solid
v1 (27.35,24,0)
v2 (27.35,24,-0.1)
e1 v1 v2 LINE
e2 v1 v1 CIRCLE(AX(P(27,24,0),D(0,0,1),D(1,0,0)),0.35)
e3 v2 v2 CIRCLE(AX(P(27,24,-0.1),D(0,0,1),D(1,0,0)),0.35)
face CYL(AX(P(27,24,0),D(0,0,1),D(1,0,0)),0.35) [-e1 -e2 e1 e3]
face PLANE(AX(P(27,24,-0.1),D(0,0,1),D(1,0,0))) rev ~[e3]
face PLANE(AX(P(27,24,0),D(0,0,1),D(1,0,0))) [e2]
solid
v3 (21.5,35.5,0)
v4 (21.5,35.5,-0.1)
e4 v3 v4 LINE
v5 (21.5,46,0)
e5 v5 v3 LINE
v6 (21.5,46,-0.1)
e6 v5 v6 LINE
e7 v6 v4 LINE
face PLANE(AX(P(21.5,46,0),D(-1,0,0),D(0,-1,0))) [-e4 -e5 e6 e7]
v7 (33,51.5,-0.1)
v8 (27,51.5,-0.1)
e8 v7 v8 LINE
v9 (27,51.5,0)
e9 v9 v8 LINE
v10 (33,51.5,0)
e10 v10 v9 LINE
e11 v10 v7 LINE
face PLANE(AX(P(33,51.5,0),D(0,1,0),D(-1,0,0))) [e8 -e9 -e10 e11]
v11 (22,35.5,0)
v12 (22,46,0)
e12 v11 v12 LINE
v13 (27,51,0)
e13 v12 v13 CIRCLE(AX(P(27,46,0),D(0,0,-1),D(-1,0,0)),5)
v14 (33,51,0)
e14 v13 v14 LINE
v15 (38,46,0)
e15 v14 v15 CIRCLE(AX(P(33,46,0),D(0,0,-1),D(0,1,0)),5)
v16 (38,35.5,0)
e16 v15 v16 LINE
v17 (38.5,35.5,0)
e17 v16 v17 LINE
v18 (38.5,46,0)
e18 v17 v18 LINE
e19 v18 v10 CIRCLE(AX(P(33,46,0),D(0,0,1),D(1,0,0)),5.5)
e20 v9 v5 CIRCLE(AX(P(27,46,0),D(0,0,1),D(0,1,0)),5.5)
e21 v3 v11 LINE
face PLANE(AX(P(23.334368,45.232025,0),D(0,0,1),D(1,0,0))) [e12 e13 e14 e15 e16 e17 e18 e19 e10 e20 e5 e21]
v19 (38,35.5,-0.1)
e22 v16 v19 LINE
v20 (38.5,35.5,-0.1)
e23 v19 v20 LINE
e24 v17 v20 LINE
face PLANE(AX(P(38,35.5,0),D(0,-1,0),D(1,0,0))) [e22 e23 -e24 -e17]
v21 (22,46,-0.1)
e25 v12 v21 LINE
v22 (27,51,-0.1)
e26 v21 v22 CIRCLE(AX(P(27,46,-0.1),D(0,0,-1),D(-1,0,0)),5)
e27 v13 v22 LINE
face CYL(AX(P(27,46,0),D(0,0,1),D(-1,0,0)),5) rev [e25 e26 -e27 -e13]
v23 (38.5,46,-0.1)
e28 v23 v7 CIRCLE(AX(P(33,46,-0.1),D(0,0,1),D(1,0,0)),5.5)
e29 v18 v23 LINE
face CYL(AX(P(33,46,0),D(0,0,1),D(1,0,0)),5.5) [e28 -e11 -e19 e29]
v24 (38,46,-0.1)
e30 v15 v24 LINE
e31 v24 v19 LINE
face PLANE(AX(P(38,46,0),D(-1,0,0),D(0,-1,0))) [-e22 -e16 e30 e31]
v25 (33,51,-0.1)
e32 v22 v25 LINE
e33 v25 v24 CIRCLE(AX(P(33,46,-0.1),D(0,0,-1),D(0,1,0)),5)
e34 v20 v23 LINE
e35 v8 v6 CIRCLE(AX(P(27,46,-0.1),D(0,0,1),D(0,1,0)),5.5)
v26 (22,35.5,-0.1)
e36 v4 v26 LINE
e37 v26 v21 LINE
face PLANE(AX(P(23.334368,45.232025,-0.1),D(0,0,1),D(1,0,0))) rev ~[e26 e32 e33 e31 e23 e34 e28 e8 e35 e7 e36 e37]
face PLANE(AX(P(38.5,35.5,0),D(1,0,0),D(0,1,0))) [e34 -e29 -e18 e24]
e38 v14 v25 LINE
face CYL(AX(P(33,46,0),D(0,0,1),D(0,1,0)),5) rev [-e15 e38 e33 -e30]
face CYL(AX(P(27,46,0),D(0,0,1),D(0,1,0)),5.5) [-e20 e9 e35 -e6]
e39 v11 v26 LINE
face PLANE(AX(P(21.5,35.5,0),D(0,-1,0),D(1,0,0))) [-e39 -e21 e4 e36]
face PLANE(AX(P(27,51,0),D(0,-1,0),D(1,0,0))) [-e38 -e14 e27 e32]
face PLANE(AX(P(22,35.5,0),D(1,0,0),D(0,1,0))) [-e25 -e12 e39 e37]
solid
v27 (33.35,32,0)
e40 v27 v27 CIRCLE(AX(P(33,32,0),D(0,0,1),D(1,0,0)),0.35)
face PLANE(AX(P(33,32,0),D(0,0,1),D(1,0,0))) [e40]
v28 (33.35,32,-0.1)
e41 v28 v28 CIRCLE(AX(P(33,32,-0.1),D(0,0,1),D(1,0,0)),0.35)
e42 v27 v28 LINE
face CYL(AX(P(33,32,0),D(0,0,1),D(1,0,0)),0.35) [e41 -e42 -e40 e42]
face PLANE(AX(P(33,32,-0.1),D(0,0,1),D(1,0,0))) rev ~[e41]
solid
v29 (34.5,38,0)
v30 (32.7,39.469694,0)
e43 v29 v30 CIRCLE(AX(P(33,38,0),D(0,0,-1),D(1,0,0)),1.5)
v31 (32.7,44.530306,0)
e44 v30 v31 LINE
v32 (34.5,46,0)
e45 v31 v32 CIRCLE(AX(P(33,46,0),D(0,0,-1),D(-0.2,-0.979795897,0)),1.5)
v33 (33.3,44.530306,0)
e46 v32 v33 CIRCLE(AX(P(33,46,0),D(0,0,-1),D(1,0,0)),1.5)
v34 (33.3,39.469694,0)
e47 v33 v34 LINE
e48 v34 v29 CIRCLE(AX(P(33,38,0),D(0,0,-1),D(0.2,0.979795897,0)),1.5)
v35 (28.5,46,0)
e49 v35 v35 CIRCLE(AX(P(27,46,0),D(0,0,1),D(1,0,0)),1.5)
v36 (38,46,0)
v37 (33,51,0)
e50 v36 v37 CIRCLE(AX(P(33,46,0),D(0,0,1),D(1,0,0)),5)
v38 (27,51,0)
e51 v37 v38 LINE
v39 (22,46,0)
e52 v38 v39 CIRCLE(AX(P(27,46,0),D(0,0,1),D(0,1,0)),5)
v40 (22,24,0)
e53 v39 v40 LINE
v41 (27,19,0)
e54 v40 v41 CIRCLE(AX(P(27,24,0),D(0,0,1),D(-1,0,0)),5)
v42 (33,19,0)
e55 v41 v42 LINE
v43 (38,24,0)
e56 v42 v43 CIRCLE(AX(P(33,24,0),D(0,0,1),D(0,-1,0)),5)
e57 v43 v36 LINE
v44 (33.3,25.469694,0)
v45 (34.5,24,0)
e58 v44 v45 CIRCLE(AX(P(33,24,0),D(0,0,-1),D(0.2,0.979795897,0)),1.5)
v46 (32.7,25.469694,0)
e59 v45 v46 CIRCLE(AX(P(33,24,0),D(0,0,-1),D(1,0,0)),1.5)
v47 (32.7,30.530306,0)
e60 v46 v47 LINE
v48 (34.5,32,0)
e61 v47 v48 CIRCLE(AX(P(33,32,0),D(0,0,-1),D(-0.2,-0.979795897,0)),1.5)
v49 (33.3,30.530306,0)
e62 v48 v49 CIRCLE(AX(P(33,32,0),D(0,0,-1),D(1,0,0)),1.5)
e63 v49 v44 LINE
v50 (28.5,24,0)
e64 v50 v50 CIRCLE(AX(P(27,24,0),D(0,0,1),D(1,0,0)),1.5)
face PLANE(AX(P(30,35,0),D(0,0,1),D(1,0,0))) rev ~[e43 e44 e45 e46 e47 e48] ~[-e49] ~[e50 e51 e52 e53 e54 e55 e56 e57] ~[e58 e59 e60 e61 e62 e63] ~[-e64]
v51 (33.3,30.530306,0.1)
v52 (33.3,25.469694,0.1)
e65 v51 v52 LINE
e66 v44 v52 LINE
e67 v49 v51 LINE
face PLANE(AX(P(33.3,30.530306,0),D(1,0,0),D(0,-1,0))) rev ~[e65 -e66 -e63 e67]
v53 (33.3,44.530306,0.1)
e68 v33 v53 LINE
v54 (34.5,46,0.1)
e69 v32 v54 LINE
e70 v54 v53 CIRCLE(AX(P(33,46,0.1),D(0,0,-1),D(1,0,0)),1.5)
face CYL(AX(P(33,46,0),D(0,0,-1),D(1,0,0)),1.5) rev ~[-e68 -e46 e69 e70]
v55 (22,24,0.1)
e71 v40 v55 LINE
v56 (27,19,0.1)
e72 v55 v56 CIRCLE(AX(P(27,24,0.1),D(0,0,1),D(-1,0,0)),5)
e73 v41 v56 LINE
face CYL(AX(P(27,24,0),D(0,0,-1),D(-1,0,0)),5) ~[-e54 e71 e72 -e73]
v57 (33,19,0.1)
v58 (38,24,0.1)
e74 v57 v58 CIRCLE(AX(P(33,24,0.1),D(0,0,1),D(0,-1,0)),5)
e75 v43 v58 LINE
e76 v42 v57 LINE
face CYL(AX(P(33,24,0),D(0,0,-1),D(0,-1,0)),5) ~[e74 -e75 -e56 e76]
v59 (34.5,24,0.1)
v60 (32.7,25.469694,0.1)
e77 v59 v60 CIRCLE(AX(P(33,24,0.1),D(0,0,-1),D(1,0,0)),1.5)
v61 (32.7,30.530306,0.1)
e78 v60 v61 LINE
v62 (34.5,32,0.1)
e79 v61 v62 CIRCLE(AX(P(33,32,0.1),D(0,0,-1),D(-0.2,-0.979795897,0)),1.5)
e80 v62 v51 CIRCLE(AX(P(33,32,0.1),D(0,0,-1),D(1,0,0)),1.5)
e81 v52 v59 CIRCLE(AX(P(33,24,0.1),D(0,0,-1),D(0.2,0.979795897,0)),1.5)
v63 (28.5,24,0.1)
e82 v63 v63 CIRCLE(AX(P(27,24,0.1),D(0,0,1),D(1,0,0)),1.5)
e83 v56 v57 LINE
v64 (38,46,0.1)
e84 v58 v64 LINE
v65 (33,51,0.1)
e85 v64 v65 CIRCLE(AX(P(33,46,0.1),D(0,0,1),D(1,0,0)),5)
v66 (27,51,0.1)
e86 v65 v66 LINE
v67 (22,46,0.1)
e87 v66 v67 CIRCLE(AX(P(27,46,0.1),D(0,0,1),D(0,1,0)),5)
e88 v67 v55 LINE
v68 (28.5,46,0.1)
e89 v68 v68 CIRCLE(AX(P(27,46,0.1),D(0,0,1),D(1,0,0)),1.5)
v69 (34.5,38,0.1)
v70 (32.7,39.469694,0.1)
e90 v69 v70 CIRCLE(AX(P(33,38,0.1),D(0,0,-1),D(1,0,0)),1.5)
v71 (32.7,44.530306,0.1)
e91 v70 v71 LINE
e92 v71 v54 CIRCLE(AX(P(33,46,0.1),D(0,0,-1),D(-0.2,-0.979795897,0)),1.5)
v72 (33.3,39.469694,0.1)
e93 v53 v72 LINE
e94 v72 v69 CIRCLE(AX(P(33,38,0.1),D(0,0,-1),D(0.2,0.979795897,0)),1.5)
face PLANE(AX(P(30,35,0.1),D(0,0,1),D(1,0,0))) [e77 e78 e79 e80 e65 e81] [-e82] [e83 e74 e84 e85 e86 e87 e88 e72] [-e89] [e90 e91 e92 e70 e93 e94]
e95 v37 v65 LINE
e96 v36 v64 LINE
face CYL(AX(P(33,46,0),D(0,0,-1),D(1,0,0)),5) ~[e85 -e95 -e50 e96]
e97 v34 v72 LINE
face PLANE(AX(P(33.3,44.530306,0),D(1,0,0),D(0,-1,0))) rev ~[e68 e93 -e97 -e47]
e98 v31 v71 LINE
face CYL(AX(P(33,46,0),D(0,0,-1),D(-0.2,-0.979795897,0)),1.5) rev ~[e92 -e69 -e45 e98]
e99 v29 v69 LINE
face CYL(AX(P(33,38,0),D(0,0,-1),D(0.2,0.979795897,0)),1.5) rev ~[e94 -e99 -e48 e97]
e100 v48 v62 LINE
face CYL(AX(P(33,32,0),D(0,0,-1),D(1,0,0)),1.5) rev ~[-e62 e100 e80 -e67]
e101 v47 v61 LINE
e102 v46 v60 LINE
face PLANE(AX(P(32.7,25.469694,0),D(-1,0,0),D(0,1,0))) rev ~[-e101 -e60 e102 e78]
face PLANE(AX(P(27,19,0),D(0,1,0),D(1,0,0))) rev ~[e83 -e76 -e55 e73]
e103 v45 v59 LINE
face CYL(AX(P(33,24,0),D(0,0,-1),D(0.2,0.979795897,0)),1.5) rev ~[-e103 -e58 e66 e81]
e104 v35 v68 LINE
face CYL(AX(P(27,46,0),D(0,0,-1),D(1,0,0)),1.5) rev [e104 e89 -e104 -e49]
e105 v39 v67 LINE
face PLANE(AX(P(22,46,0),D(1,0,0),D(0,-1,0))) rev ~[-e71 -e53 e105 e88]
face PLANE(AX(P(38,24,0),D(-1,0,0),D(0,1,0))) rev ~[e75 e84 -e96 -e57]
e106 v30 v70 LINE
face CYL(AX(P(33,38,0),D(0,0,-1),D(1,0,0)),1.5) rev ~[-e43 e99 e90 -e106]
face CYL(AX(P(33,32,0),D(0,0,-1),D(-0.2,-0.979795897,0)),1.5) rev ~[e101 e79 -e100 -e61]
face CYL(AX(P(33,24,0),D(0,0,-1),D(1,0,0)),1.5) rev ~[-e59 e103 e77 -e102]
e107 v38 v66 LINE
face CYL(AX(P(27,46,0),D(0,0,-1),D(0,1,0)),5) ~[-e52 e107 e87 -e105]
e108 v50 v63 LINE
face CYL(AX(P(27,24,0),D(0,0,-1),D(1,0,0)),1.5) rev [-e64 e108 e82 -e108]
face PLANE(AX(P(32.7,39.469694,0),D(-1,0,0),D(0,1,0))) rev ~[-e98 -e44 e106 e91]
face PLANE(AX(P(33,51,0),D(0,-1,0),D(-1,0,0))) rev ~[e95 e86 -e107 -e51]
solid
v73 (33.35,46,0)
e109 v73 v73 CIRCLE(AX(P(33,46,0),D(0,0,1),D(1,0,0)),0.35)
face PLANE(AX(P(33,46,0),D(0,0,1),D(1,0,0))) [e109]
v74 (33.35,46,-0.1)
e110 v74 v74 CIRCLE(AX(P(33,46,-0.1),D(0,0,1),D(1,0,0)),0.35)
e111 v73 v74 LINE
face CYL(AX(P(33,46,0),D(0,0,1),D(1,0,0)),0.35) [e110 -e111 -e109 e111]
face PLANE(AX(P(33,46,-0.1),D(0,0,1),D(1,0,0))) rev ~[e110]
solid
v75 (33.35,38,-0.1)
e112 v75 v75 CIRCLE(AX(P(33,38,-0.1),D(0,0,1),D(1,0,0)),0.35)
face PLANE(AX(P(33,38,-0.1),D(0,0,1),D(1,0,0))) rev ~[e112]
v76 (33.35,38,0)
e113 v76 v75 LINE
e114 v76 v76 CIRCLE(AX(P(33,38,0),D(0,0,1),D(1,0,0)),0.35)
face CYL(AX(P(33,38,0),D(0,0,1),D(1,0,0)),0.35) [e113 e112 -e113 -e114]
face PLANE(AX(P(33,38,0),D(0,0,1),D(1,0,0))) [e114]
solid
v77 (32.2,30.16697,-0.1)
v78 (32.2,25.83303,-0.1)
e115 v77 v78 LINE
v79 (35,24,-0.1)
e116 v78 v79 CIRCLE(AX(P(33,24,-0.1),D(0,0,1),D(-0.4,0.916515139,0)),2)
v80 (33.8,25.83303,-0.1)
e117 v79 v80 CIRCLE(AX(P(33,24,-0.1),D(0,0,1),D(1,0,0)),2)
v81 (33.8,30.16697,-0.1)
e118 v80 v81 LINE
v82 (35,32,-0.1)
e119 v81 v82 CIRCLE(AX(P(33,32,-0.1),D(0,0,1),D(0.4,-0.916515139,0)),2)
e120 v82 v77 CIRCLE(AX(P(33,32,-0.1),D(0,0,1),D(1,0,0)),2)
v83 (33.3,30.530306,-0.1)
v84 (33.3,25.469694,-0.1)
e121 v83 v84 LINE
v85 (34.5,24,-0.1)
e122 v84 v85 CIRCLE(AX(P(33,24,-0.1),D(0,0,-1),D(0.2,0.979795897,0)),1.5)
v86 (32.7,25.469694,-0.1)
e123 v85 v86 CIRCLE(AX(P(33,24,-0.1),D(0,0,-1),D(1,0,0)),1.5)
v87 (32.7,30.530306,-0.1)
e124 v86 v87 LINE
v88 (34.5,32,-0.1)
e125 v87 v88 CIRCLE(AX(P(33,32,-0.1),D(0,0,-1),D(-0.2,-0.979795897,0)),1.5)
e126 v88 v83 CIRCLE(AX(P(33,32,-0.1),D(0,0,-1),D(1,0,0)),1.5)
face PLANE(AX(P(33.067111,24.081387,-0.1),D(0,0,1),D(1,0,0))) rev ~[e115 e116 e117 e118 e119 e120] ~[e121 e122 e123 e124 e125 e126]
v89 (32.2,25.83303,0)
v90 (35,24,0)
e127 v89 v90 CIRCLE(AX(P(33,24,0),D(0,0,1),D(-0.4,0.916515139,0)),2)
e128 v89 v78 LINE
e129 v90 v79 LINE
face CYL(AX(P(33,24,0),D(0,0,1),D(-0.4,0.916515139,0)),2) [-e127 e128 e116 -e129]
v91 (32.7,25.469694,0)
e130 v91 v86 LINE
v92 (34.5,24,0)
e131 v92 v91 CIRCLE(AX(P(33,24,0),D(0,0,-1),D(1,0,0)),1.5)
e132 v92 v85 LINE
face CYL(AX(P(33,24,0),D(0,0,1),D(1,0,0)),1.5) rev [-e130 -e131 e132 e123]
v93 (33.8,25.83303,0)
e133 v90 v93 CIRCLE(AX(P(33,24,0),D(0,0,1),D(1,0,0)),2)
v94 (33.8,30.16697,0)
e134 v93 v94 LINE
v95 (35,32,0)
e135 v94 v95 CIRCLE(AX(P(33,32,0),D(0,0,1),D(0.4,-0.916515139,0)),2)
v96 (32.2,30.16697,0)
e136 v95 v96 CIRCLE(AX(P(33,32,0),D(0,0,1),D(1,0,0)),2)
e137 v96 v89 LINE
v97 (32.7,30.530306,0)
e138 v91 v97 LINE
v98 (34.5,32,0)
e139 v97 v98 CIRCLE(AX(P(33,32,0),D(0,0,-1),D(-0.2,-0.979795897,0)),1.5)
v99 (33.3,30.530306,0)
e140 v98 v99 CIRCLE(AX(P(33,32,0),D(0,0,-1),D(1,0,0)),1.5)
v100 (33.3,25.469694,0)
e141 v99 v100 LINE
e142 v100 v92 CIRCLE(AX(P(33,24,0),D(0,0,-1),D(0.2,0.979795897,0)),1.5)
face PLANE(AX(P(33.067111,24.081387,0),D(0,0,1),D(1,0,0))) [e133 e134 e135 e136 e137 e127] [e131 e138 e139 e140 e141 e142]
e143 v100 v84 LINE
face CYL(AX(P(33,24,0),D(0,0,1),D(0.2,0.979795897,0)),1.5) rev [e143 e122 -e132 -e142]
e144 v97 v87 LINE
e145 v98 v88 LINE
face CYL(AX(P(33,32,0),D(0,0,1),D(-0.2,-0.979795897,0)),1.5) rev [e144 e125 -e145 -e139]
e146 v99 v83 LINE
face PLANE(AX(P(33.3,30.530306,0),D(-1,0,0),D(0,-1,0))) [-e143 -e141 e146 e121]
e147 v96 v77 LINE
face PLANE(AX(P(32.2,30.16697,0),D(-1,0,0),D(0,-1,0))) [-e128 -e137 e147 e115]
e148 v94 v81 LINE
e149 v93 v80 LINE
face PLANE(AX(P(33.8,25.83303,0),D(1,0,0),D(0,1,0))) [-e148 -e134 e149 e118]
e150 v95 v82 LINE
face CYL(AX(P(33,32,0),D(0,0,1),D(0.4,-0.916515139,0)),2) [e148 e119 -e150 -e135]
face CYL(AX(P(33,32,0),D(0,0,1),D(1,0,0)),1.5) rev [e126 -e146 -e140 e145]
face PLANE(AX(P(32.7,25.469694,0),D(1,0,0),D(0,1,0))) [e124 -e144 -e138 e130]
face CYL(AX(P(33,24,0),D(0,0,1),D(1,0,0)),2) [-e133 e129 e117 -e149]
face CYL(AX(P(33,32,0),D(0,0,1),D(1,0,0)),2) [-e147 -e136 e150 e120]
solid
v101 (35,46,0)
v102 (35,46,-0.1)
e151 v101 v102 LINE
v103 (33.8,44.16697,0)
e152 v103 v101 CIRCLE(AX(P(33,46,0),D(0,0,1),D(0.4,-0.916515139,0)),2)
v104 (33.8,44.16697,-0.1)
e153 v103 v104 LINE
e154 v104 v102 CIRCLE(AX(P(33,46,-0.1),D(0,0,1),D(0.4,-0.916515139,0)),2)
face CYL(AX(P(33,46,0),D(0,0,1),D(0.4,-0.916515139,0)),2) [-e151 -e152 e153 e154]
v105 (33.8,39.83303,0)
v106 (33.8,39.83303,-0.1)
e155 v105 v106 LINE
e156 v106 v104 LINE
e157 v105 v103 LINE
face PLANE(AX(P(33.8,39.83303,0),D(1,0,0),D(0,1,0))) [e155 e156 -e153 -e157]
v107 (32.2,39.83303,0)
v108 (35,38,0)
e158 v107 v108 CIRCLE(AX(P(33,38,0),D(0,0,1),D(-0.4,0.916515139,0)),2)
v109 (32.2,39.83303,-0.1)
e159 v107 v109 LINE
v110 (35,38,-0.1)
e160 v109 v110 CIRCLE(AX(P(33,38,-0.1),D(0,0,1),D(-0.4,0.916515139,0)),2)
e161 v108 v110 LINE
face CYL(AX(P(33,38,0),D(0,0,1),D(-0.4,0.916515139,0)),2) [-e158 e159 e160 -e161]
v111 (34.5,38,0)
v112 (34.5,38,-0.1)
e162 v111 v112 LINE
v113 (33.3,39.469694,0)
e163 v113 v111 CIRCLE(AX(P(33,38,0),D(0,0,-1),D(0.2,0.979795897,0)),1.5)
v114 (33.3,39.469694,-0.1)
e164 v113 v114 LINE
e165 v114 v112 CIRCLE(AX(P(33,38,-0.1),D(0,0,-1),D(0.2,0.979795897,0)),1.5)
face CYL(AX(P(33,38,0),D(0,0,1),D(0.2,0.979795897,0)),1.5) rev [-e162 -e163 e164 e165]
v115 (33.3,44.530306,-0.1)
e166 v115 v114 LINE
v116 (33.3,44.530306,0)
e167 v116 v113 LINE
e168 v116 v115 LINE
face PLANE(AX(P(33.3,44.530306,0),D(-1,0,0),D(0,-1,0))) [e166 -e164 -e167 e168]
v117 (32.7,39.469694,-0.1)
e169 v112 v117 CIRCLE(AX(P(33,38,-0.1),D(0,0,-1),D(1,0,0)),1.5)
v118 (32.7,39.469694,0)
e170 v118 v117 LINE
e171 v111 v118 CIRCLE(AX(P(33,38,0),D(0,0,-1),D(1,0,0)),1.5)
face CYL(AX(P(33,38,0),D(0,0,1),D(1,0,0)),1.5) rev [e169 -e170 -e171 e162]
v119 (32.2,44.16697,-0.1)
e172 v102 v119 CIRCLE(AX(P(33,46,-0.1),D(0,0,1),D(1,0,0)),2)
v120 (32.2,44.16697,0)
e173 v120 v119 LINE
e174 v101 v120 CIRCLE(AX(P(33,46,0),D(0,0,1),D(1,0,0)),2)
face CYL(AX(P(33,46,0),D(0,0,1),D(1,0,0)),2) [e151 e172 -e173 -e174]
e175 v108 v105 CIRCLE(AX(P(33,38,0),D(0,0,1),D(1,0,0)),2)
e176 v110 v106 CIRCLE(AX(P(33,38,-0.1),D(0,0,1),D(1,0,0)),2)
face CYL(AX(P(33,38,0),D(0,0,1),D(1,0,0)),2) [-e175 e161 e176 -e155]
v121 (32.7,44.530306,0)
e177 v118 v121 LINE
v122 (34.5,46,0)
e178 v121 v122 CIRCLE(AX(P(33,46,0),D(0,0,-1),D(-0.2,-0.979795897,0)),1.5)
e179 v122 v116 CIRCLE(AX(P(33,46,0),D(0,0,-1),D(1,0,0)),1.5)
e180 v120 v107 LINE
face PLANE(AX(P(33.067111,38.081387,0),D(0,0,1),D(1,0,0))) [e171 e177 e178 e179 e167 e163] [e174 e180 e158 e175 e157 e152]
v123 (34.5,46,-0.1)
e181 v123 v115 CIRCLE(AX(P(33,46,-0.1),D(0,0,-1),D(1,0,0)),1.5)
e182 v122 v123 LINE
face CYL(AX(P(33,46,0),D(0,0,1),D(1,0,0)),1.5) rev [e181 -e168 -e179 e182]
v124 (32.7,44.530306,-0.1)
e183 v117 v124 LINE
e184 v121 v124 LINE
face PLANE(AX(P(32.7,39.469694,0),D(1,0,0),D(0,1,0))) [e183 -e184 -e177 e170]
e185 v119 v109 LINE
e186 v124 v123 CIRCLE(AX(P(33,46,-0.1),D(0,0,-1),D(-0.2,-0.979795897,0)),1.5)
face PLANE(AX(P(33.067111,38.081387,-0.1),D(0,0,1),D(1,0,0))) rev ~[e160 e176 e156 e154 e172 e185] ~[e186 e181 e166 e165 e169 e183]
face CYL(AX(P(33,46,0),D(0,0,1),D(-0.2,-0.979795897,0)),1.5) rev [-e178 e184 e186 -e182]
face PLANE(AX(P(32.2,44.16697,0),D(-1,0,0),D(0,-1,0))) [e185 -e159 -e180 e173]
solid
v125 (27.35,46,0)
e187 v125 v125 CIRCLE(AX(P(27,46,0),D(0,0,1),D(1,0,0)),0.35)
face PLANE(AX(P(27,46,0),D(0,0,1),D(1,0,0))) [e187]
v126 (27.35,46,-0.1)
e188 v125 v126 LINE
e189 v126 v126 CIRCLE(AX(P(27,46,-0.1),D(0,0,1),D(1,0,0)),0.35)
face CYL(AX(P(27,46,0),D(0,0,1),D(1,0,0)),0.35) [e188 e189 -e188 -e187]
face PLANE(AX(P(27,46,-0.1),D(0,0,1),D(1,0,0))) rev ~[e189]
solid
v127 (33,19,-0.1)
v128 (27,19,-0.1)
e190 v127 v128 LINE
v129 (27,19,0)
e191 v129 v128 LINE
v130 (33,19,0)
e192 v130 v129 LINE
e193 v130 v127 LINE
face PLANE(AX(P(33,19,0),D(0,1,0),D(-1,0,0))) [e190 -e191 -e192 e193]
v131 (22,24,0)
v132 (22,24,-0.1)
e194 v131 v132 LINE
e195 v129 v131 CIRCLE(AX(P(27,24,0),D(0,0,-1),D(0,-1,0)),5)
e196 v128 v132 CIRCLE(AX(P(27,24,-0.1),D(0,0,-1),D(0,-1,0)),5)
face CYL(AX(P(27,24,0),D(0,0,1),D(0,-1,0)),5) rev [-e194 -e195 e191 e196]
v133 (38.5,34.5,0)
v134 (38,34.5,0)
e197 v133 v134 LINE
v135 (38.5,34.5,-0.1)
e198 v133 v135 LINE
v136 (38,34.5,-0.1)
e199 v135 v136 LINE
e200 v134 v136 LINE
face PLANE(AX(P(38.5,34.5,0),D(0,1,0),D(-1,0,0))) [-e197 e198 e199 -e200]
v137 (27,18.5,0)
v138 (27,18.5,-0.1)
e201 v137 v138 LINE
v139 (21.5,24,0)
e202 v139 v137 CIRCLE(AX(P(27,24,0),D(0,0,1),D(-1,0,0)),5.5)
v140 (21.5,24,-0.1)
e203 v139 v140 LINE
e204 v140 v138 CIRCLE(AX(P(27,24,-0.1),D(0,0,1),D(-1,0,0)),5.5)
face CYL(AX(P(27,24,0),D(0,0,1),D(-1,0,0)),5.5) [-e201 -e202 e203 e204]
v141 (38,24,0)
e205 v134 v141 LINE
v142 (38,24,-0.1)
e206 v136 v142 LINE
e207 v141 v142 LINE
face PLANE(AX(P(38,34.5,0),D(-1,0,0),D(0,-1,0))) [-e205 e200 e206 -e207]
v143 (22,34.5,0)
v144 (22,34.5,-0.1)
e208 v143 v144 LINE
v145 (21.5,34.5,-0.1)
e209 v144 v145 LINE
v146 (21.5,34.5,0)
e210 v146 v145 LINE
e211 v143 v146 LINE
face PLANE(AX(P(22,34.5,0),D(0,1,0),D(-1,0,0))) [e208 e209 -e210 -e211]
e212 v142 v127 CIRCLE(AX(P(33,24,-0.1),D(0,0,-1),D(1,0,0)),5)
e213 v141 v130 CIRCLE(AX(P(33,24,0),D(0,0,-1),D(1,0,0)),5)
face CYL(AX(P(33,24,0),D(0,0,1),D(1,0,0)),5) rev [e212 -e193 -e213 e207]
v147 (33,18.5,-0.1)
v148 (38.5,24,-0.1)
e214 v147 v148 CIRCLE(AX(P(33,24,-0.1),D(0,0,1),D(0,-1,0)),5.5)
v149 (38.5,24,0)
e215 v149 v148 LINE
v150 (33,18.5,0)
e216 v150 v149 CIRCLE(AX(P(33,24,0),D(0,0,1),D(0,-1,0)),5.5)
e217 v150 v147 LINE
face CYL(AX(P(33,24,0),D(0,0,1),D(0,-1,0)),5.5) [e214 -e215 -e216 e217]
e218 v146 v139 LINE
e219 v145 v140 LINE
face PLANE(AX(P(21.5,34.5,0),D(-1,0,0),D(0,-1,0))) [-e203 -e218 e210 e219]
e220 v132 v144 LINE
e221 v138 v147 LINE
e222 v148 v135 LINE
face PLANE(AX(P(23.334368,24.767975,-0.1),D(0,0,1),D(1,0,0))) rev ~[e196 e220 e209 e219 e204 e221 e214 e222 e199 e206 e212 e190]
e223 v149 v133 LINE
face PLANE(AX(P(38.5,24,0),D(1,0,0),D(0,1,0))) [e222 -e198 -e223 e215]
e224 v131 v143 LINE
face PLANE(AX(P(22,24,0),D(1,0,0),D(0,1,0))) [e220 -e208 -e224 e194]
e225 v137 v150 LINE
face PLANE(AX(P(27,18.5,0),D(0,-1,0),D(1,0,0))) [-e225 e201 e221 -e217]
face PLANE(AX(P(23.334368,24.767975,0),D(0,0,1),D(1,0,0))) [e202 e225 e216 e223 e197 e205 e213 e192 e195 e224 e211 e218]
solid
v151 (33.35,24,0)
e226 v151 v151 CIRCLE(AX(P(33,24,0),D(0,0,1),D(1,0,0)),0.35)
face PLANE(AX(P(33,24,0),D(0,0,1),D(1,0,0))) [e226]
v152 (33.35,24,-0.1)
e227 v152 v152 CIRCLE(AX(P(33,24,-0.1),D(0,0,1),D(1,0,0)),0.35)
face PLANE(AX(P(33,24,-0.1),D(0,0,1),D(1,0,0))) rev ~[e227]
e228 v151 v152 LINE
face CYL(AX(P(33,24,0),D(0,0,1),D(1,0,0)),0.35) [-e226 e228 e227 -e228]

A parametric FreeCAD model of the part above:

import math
import FreeCAD as App
import Part
import Sketcher
Q = App.Units.Quantity

doc = App.newDocument("Part")
body = doc.addObject("PartDesign::Body", "Body")

sketch1 = body.newObject("Sketcher::SketchObject", "Sketch")
sketch1.AttachmentSupport = (doc.getObject("XY_Plane"), [""])
sketch1.MapMode = "FlatFace"
sketch1.addGeometry(Part.ArcOfCircle(Part.Circle(App.Vector(33, 32, 0), App.Vector(0, 0, 1), 2), math.radians(-66), math.radians(0)), False)
sketch1.addGeometry(Part.ArcOfCircle(Part.Circle(App.Vector(33, 32, 0), App.Vector(0, 0, 1), 2), math.radians(0), math.radians(246)), False)
sketch1.addGeometry(Part.LineSegment(App.Vector(32.2, 30.2, 0), App.Vector(32.2, 25.8, 0)), False)
sketch1.addGeometry(Part.ArcOfCircle(Part.Circle(App.Vector(33, 24, 0), App.Vector(0, 0, 1), 2), math.radians(114), math.radians(360)), False)
sketch1.addGeometry(Part.ArcOfCircle(Part.Circle(App.Vector(33, 24, 0), App.Vector(0, 0, 1), 2), math.radians(0), math.radians(66)), False)
sketch1.addGeometry(Part.LineSegment(App.Vector(33.8, 25.8, 0), App.Vector(33.8, 30.2, 0)), False)
sketch1.addGeometry(Part.ArcOfCircle(Part.Circle(App.Vector(33, 24, 0), App.Vector(0, 0, 1), 1.5), math.radians(0), math.radians(78)), False)
sketch1.addGeometry(Part.ArcOfCircle(Part.Circle(App.Vector(33, 24, 0), App.Vector(0, 0, 1), 1.5), math.radians(102), math.radians(360)), False)
sketch1.addGeometry(Part.LineSegment(App.Vector(32.7, 25.5, 0), App.Vector(32.7, 30.5, 0)), False)
sketch1.addGeometry(Part.ArcOfCircle(Part.Circle(App.Vector(33, 32, 0), App.Vector(0, 0, 1), 1.5), math.radians(0), math.radians(258)), False)
sketch1.addGeometry(Part.ArcOfCircle(Part.Circle(App.Vector(33, 32, 0), App.Vector(0, 0, 1), 1.5), math.radians(-78), math.radians(0)), False)
sketch1.addGeometry(Part.LineSegment(App.Vector(33.3, 30.5, 0), App.Vector(33.3, 25.5, 0)), False)
sketch1.addConstraint(Sketcher.Constraint("Tangent", 0, 2, 1, 1))
sketch1.addConstraint(Sketcher.Constraint("Coincident", 1, 2, 2, 1))
sketch1.addConstraint(Sketcher.Constraint("Coincident", 2, 2, 3, 1))
sketch1.addConstraint(Sketcher.Constraint("Tangent", 3, 2, 4, 1))
sketch1.addConstraint(Sketcher.Constraint("Coincident", 4, 2, 5, 1))
sketch1.addConstraint(Sketcher.Constraint("Coincident", 5, 2, 0, 1))
sketch1.addConstraint(Sketcher.Constraint("Tangent", 6, 1, 7, 2))
sketch1.addConstraint(Sketcher.Constraint("Coincident", 7, 1, 8, 1))
sketch1.addConstraint(Sketcher.Constraint("Coincident", 8, 2, 9, 2))
sketch1.addConstraint(Sketcher.Constraint("Tangent", 9, 1, 10, 2))
sketch1.addConstraint(Sketcher.Constraint("Coincident", 10, 1, 11, 1))
sketch1.addConstraint(Sketcher.Constraint("Coincident", 11, 2, 6, 2))
sketch1.addConstraint(Sketcher.Constraint("Vertical", 2))
sketch1.addConstraint(Sketcher.Constraint("Vertical", 5))
sketch1.addConstraint(Sketcher.Constraint("Vertical", 8))
sketch1.addConstraint(Sketcher.Constraint("Vertical", 11))
sketch1.addConstraint(Sketcher.Constraint("Coincident", 6, 3, 3, 3))
sketch1.addConstraint(Sketcher.Constraint("Coincident", 9, 3, 0, 3))
sketch1.addConstraint(Sketcher.Constraint("Equal", 0, 1))
sketch1.addConstraint(Sketcher.Constraint("Equal", 1, 3))
sketch1.addConstraint(Sketcher.Constraint("Equal", 3, 4))
sketch1.addConstraint(Sketcher.Constraint("Equal", 6, 7))
sketch1.addConstraint(Sketcher.Constraint("Equal", 7, 9))
sketch1.addConstraint(Sketcher.Constraint("Equal", 9, 10))
sketch1.addConstraint(Sketcher.Constraint("Horizontal", 10, 3, 0, 2))
sketch1.addConstraint(Sketcher.Constraint("Horizontal", 7, 3, 3, 2))
sketch1.addConstraint(Sketcher.Constraint("Horizontal", 2, 2, 4, 2))
sketch1.addConstraint(Sketcher.Constraint("Horizontal", 1, 2, 5, 2))
sketch1.addConstraint(Sketcher.Constraint("Horizontal", 3, 2, 6, 1))
sketch1.addConstraint(Sketcher.Constraint("Horizontal", 0, 2, 9, 1))
sketch1.addConstraint(Sketcher.Constraint("Horizontal", 8, 2, 10, 1))
sketch1.addConstraint(Sketcher.Constraint("Radius", 0, Q("2 mm")))
sketch1.addConstraint(Sketcher.Constraint("Radius", 6, Q("1.5 mm")))
sketch1.addConstraint(Sketcher.Constraint("DistanceX", -1, 1, 0, 3, Q("33 mm")))
sketch1.addConstraint(Sketcher.Constraint("DistanceY", -1, 1, 0, 3, Q("32 mm")))
sketch1.addConstraint(Sketcher.Constraint("DistanceY", -1, 1, 3, 3, Q("24 mm")))
sketch1.addConstraint(Sketcher.Constraint("DistanceX", -1, 1, 1, 2, Q("32.2 mm")))
sketch1.addConstraint(Sketcher.Constraint("DistanceX", -1, 1, 7, 1, Q("32.7 mm")))
pad1 = body.newObject("PartDesign::Pad", "Pad")
pad1.Profile = sketch1
pad1.Length = 0.1
pad1.Reversed = True
body2 = doc.addObject("PartDesign::Body", "Body001")

sketch2 = body2.newObject("Sketcher::SketchObject", "Sketch001")
sketch2.AttachmentSupport = (doc.getObject("XY_Plane001"), [""])
sketch2.MapMode = "FlatFace"
sketch2.addGeometry(Part.ArcOfCircle(Part.Circle(App.Vector(33, 46, 0), App.Vector(0, 0, 1), 2), math.radians(-66), math.radians(0)), False)
sketch2.addGeometry(Part.ArcOfCircle(Part.Circle(App.Vector(33, 46, 0), App.Vector(0, 0, 1), 2), math.radians(0), math.radians(246)), False)
sketch2.addGeometry(Part.LineSegment(App.Vector(32.2, 44.2, 0), App.Vector(32.2, 39.8, 0)), False)
sketch2.addGeometry(Part.ArcOfCircle(Part.Circle(App.Vector(33, 38, 0), App.Vector(0, 0, 1), 2), math.radians(114), math.radians(360)), False)
sketch2.addGeometry(Part.ArcOfCircle(Part.Circle(App.Vector(33, 38, 0), App.Vector(0, 0, 1), 2), math.radians(0), math.radians(66)), False)
sketch2.addGeometry(Part.LineSegment(App.Vector(33.8, 39.8, 0), App.Vector(33.8, 44.2, 0)), False)
sketch2.addGeometry(Part.ArcOfCircle(Part.Circle(App.Vector(33, 38, 0), App.Vector(0, 0, 1), 1.5), math.radians(0), math.radians(78)), False)
sketch2.addGeometry(Part.ArcOfCircle(Part.Circle(App.Vector(33, 38, 0), App.Vector(0, 0, 1), 1.5), math.radians(102), math.radians(360)), False)
sketch2.addGeometry(Part.LineSegment(App.Vector(32.7, 39.5, 0), App.Vector(32.7, 44.5, 0)), False)
sketch2.addGeometry(Part.ArcOfCircle(Part.Circle(App.Vector(33, 46, 0), App.Vector(0, 0, 1), 1.5), math.radians(0), math.radians(258)), False)
sketch2.addGeometry(Part.ArcOfCircle(Part.Circle(App.Vector(33, 46, 0), App.Vector(0, 0, 1), 1.5), math.radians(-78), math.radians(0)), False)
sketch2.addGeometry(Part.LineSegment(App.Vector(33.3, 44.5, 0), App.Vector(33.3, 39.5, 0)), False)
sketch2.addConstraint(Sketcher.Constraint("Tangent", 0, 2, 1, 1))
sketch2.addConstraint(Sketcher.Constraint("Coincident", 1, 2, 2, 1))
sketch2.addConstraint(Sketcher.Constraint("Coincident", 2, 2, 3, 1))
sketch2.addConstraint(Sketcher.Constraint("Tangent", 3, 2, 4, 1))
sketch2.addConstraint(Sketcher.Constraint("Coincident", 4, 2, 5, 1))
sketch2.addConstraint(Sketcher.Constraint("Coincident", 5, 2, 0, 1))
sketch2.addConstraint(Sketcher.Constraint("Tangent", 6, 1, 7, 2))
sketch2.addConstraint(Sketcher.Constraint("Coincident", 7, 1, 8, 1))
sketch2.addConstraint(Sketcher.Constraint("Coincident", 8, 2, 9, 2))
sketch2.addConstraint(Sketcher.Constraint("Tangent", 9, 1, 10, 2))
sketch2.addConstraint(Sketcher.Constraint("Coincident", 10, 1, 11, 1))
sketch2.addConstraint(Sketcher.Constraint("Coincident", 11, 2, 6, 2))
sketch2.addConstraint(Sketcher.Constraint("Vertical", 2))
sketch2.addConstraint(Sketcher.Constraint("Vertical", 5))
sketch2.addConstraint(Sketcher.Constraint("Vertical", 8))
sketch2.addConstraint(Sketcher.Constraint("Vertical", 11))
sketch2.addConstraint(Sketcher.Constraint("Coincident", 6, 3, 3, 3))
sketch2.addConstraint(Sketcher.Constraint("Coincident", 9, 3, 0, 3))
sketch2.addConstraint(Sketcher.Constraint("Equal", 0, 1))
sketch2.addConstraint(Sketcher.Constraint("Equal", 1, 3))
sketch2.addConstraint(Sketcher.Constraint("Equal", 3, 4))
sketch2.addConstraint(Sketcher.Constraint("Equal", 6, 7))
sketch2.addConstraint(Sketcher.Constraint("Equal", 7, 9))
sketch2.addConstraint(Sketcher.Constraint("Equal", 9, 10))
sketch2.addConstraint(Sketcher.Constraint("Horizontal", 10, 3, 0, 2))
sketch2.addConstraint(Sketcher.Constraint("Horizontal", 7, 3, 3, 2))
sketch2.addConstraint(Sketcher.Constraint("Horizontal", 2, 2, 4, 2))
sketch2.addConstraint(Sketcher.Constraint("Horizontal", 1, 2, 5, 2))
sketch2.addConstraint(Sketcher.Constraint("Horizontal", 3, 2, 6, 1))
sketch2.addConstraint(Sketcher.Constraint("Horizontal", 0, 2, 9, 1))
sketch2.addConstraint(Sketcher.Constraint("Horizontal", 8, 2, 10, 1))
sketch2.addConstraint(Sketcher.Constraint("Radius", 0, Q("2 mm")))
sketch2.addConstraint(Sketcher.Constraint("Radius", 6, Q("1.5 mm")))
sketch2.addConstraint(Sketcher.Constraint("DistanceX", -1, 1, 0, 3, Q("33 mm")))
sketch2.addConstraint(Sketcher.Constraint("DistanceY", -1, 1, 0, 3, Q("46 mm")))
sketch2.addConstraint(Sketcher.Constraint("DistanceY", -1, 1, 3, 3, Q("38 mm")))
sketch2.addConstraint(Sketcher.Constraint("DistanceX", -1, 1, 1, 2, Q("32.2 mm")))
sketch2.addConstraint(Sketcher.Constraint("DistanceX", -1, 1, 7, 1, Q("32.7 mm")))
pad2 = body2.newObject("PartDesign::Pad", "Pad001")
pad2.Profile = sketch2
pad2.Length = 0.1
pad2.Reversed = True
body3 = doc.addObject("PartDesign::Body", "Body002")

sketch3 = body3.newObject("Sketcher::SketchObject", "Sketch002")
sketch3.AttachmentSupport = (doc.getObject("XY_Plane002"), [""])
sketch3.MapMode = "FlatFace"
sketch3.addGeometry(Part.ArcOfCircle(Part.Circle(App.Vector(27, 46, 0), App.Vector(0, 0, 1), 5), math.radians(90), math.radians(180)), False)
sketch3.addGeometry(Part.LineSegment(App.Vector(27, 51, 0), App.Vector(33, 51, 0)), False)
sketch3.addGeometry(Part.ArcOfCircle(Part.Circle(App.Vector(33, 46, 0), App.Vector(0, 0, 1), 5), math.radians(0), math.radians(90)), False)
sketch3.addGeometry(Part.LineSegment(App.Vector(38, 46, 0), App.Vector(38, 35.5, 0)), False)
sketch3.addGeometry(Part.LineSegment(App.Vector(38, 35.5, 0), App.Vector(38.5, 35.5, 0)), False)
sketch3.addGeometry(Part.LineSegment(App.Vector(38.5, 35.5, 0), App.Vector(38.5, 46, 0)), False)
sketch3.addGeometry(Part.ArcOfCircle(Part.Circle(App.Vector(33, 46, 0), App.Vector(0, 0, 1), 5.5), math.radians(0), math.radians(90)), False)
sketch3.addGeometry(Part.LineSegment(App.Vector(33, 51.5, 0), App.Vector(27, 51.5, 0)), False)
sketch3.addGeometry(Part.ArcOfCircle(Part.Circle(App.Vector(27, 46, 0), App.Vector(0, 0, 1), 5.5), math.radians(90), math.radians(180)), False)
sketch3.addGeometry(Part.LineSegment(App.Vector(21.5, 46, 0), App.Vector(21.5, 35.5, 0)), False)
sketch3.addGeometry(Part.LineSegment(App.Vector(21.5, 35.5, 0), App.Vector(22, 35.5, 0)), False)
sketch3.addGeometry(Part.LineSegment(App.Vector(22, 35.5, 0), App.Vector(22, 46, 0)), False)
sketch3.addConstraint(Sketcher.Constraint("Tangent", 0, 1, 1, 1))
sketch3.addConstraint(Sketcher.Constraint("Tangent", 1, 2, 2, 2))
sketch3.addConstraint(Sketcher.Constraint("Tangent", 2, 1, 3, 1))
sketch3.addConstraint(Sketcher.Constraint("Coincident", 3, 2, 4, 1))
sketch3.addConstraint(Sketcher.Constraint("Coincident", 4, 2, 5, 1))
sketch3.addConstraint(Sketcher.Constraint("Tangent", 5, 2, 6, 1))
sketch3.addConstraint(Sketcher.Constraint("Tangent", 6, 2, 7, 1))
sketch3.addConstraint(Sketcher.Constraint("Tangent", 7, 2, 8, 1))
sketch3.addConstraint(Sketcher.Constraint("Tangent", 8, 2, 9, 1))
sketch3.addConstraint(Sketcher.Constraint("Coincident", 9, 2, 10, 1))
sketch3.addConstraint(Sketcher.Constraint("Coincident", 10, 2, 11, 1))
sketch3.addConstraint(Sketcher.Constraint("Tangent", 11, 2, 0, 2))
sketch3.addConstraint(Sketcher.Constraint("Horizontal", 1))
sketch3.addConstraint(Sketcher.Constraint("Vertical", 3))
sketch3.addConstraint(Sketcher.Constraint("Horizontal", 4))
sketch3.addConstraint(Sketcher.Constraint("Vertical", 5))
sketch3.addConstraint(Sketcher.Constraint("Horizontal", 7))
sketch3.addConstraint(Sketcher.Constraint("Vertical", 9))
sketch3.addConstraint(Sketcher.Constraint("Horizontal", 10))
sketch3.addConstraint(Sketcher.Constraint("Vertical", 11))
sketch3.addConstraint(Sketcher.Constraint("Coincident", 6, 3, 2, 3))
sketch3.addConstraint(Sketcher.Constraint("Coincident", 8, 3, 0, 3))
sketch3.addConstraint(Sketcher.Constraint("Equal", 0, 2))
sketch3.addConstraint(Sketcher.Constraint("Horizontal", 4, 2, 9, 2))
sketch3.addConstraint(Sketcher.Constraint("Radius", 0, Q("5 mm")))
sketch3.addConstraint(Sketcher.Constraint("Radius", 6, Q("5.5 mm")))
sketch3.addConstraint(Sketcher.Constraint("DistanceX", 1, 1, 1, 2, Q("6 mm")))
sketch3.addConstraint(Sketcher.Constraint("DistanceY", 3, 2, 3, 1, Q("10.5 mm")))
sketch3.addConstraint(Sketcher.Constraint("DistanceX", -1, 1, 0, 3, Q("27 mm")))
sketch3.addConstraint(Sketcher.Constraint("DistanceY", -1, 1, 0, 3, Q("46 mm")))
pad3 = body3.newObject("PartDesign::Pad", "Pad002")
pad3.Profile = sketch3
pad3.Length = 0.1
pad3.Reversed = True
body4 = doc.addObject("PartDesign::Body", "Body003")

sketch4 = body4.newObject("Sketcher::SketchObject", "Sketch003")
sketch4.AttachmentSupport = (doc.getObject("XY_Plane003"), [""])
sketch4.MapMode = "FlatFace"
sketch4.addGeometry(Part.LineSegment(App.Vector(22, 24, 0), App.Vector(22, 34.5, 0)), False)
sketch4.addGeometry(Part.LineSegment(App.Vector(22, 34.5, 0), App.Vector(21.5, 34.5, 0)), False)
sketch4.addGeometry(Part.LineSegment(App.Vector(21.5, 34.5, 0), App.Vector(21.5, 24, 0)), False)
sketch4.addGeometry(Part.ArcOfCircle(Part.Circle(App.Vector(27, 24, 0), App.Vector(0, 0, 1), 5.5), math.radians(180), math.radians(270)), False)
sketch4.addGeometry(Part.LineSegment(App.Vector(27, 18.5, 0), App.Vector(33, 18.5, 0)), False)
sketch4.addGeometry(Part.ArcOfCircle(Part.Circle(App.Vector(33, 24, 0), App.Vector(0, 0, 1), 5.5), math.radians(-90), math.radians(0)), False)
sketch4.addGeometry(Part.LineSegment(App.Vector(38.5, 24, 0), App.Vector(38.5, 34.5, 0)), False)
sketch4.addGeometry(Part.LineSegment(App.Vector(38.5, 34.5, 0), App.Vector(38, 34.5, 0)), False)
sketch4.addGeometry(Part.LineSegment(App.Vector(38, 34.5, 0), App.Vector(38, 24, 0)), False)
sketch4.addGeometry(Part.ArcOfCircle(Part.Circle(App.Vector(33, 24, 0), App.Vector(0, 0, 1), 5), math.radians(-90), math.radians(0)), False)
sketch4.addGeometry(Part.LineSegment(App.Vector(33, 19, 0), App.Vector(27, 19, 0)), False)
sketch4.addGeometry(Part.ArcOfCircle(Part.Circle(App.Vector(27, 24, 0), App.Vector(0, 0, 1), 5), math.radians(180), math.radians(270)), False)
sketch4.addConstraint(Sketcher.Constraint("Coincident", 0, 2, 1, 1))
sketch4.addConstraint(Sketcher.Constraint("Coincident", 1, 2, 2, 1))
sketch4.addConstraint(Sketcher.Constraint("Tangent", 2, 2, 3, 1))
sketch4.addConstraint(Sketcher.Constraint("Tangent", 3, 2, 4, 1))
sketch4.addConstraint(Sketcher.Constraint("Tangent", 4, 2, 5, 1))
sketch4.addConstraint(Sketcher.Constraint("Tangent", 5, 2, 6, 1))
sketch4.addConstraint(Sketcher.Constraint("Coincident", 6, 2, 7, 1))
sketch4.addConstraint(Sketcher.Constraint("Coincident", 7, 2, 8, 1))
sketch4.addConstraint(Sketcher.Constraint("Tangent", 8, 2, 9, 2))
sketch4.addConstraint(Sketcher.Constraint("Tangent", 9, 1, 10, 1))
sketch4.addConstraint(Sketcher.Constraint("Tangent", 10, 2, 11, 2))
sketch4.addConstraint(Sketcher.Constraint("Tangent", 11, 1, 0, 1))
sketch4.addConstraint(Sketcher.Constraint("Vertical", 0))
sketch4.addConstraint(Sketcher.Constraint("Horizontal", 1))
sketch4.addConstraint(Sketcher.Constraint("Vertical", 2))
sketch4.addConstraint(Sketcher.Constraint("Horizontal", 4))
sketch4.addConstraint(Sketcher.Constraint("Vertical", 6))
sketch4.addConstraint(Sketcher.Constraint("Horizontal", 7))
sketch4.addConstraint(Sketcher.Constraint("Vertical", 8))
sketch4.addConstraint(Sketcher.Constraint("Horizontal", 10))
sketch4.addConstraint(Sketcher.Constraint("Coincident", 9, 3, 5, 3))
sketch4.addConstraint(Sketcher.Constraint("Coincident", 11, 3, 3, 3))
sketch4.addConstraint(Sketcher.Constraint("Equal", 3, 5))
sketch4.addConstraint(Sketcher.Constraint("Horizontal", 1, 2, 6, 2))
sketch4.addConstraint(Sketcher.Constraint("Radius", 9, Q("5 mm")))
sketch4.addConstraint(Sketcher.Constraint("Radius", 3, Q("5.5 mm")))
sketch4.addConstraint(Sketcher.Constraint("DistanceX", 4, 1, 4, 2, Q("6 mm")))
sketch4.addConstraint(Sketcher.Constraint("DistanceY", 0, 1, 0, 2, Q("10.5 mm")))
sketch4.addConstraint(Sketcher.Constraint("DistanceX", -1, 1, 3, 3, Q("27 mm")))
sketch4.addConstraint(Sketcher.Constraint("DistanceY", -1, 1, 3, 3, Q("24 mm")))
pad4 = body4.newObject("PartDesign::Pad", "Pad003")
pad4.Profile = sketch4
pad4.Length = 0.1
pad4.Reversed = True
body5 = doc.addObject("PartDesign::Body", "Body004")

sketch5 = body5.newObject("Sketcher::SketchObject", "Sketch004")
sketch5.AttachmentSupport = (doc.getObject("XY_Plane004"), [""])
sketch5.MapMode = "FlatFace"
sketch5.addGeometry(Part.Circle(App.Vector(33, 46, 0), App.Vector(0, 0, 1), 0.35), False)
sketch5.addConstraint(Sketcher.Constraint("Diameter", 0, Q("0.7 mm")))
sketch5.addConstraint(Sketcher.Constraint("DistanceX", -1, 1, 0, 3, Q("33 mm")))
sketch5.addConstraint(Sketcher.Constraint("DistanceY", -1, 1, 0, 3, Q("46 mm")))
pad5 = body5.newObject("PartDesign::Pad", "Pad004")
pad5.Profile = sketch5
pad5.Length = 0.1
pad5.Reversed = True
body6 = doc.addObject("PartDesign::Body", "Body005")

sketch6 = body6.newObject("Sketcher::SketchObject", "Sketch005")
sketch6.AttachmentSupport = (doc.getObject("XY_Plane005"), [""])
sketch6.MapMode = "FlatFace"
sketch6.addGeometry(Part.Circle(App.Vector(33, 38, 0), App.Vector(0, 0, 1), 0.35), False)
sketch6.addConstraint(Sketcher.Constraint("Diameter", 0, Q("0.7 mm")))
sketch6.addConstraint(Sketcher.Constraint("DistanceX", -1, 1, 0, 3, Q("33 mm")))
sketch6.addConstraint(Sketcher.Constraint("DistanceY", -1, 1, 0, 3, Q("38 mm")))
pad6 = body6.newObject("PartDesign::Pad", "Pad005")
pad6.Profile = sketch6
pad6.Length = 0.1
pad6.Reversed = True
body7 = doc.addObject("PartDesign::Body", "Body006")

sketch7 = body7.newObject("Sketcher::SketchObject", "Sketch006")
sketch7.AttachmentSupport = (doc.getObject("XY_Plane006"), [""])
sketch7.MapMode = "FlatFace"
sketch7.addGeometry(Part.Circle(App.Vector(33, 32, 0), App.Vector(0, 0, 1), 0.35), False)
sketch7.addConstraint(Sketcher.Constraint("Diameter", 0, Q("0.7 mm")))
sketch7.addConstraint(Sketcher.Constraint("DistanceX", -1, 1, 0, 3, Q("33 mm")))
sketch7.addConstraint(Sketcher.Constraint("DistanceY", -1, 1, 0, 3, Q("32 mm")))
pad7 = body7.newObject("PartDesign::Pad", "Pad006")
pad7.Profile = sketch7
pad7.Length = 0.1
pad7.Reversed = True
body8 = doc.addObject("PartDesign::Body", "Body007")

sketch8 = body8.newObject("Sketcher::SketchObject", "Sketch007")
sketch8.AttachmentSupport = (doc.getObject("XY_Plane007"), [""])
sketch8.MapMode = "FlatFace"
sketch8.addGeometry(Part.Circle(App.Vector(33, 24, 0), App.Vector(0, 0, 1), 0.35), False)
sketch8.addConstraint(Sketcher.Constraint("Diameter", 0, Q("0.7 mm")))
sketch8.addConstraint(Sketcher.Constraint("DistanceX", -1, 1, 0, 3, Q("33 mm")))
sketch8.addConstraint(Sketcher.Constraint("DistanceY", -1, 1, 0, 3, Q("24 mm")))
pad8 = body8.newObject("PartDesign::Pad", "Pad007")
pad8.Profile = sketch8
pad8.Length = 0.1
pad8.Reversed = True
body9 = doc.addObject("PartDesign::Body", "Body008")

sketch9 = body9.newObject("Sketcher::SketchObject", "Sketch008")
sketch9.AttachmentSupport = (doc.getObject("XY_Plane008"), [""])
sketch9.MapMode = "FlatFace"
sketch9.addGeometry(Part.Circle(App.Vector(27, 24, 0), App.Vector(0, 0, 1), 0.35), False)
sketch9.addConstraint(Sketcher.Constraint("Diameter", 0, Q("0.7 mm")))
sketch9.addConstraint(Sketcher.Constraint("DistanceX", -1, 1, 0, 3, Q("27 mm")))
sketch9.addConstraint(Sketcher.Constraint("DistanceY", -1, 1, 0, 3, Q("24 mm")))
pad9 = body9.newObject("PartDesign::Pad", "Pad008")
pad9.Profile = sketch9
pad9.Length = 0.1
pad9.Reversed = True
body10 = doc.addObject("PartDesign::Body", "Body009")

sketch10 = body10.newObject("Sketcher::SketchObject", "Sketch009")
sketch10.AttachmentSupport = (doc.getObject("XY_Plane009"), [""])
sketch10.MapMode = "FlatFace"
sketch10.addGeometry(Part.Circle(App.Vector(27, 46, 0), App.Vector(0, 0, 1), 0.35), False)
sketch10.addConstraint(Sketcher.Constraint("Diameter", 0, Q("0.7 mm")))
sketch10.addConstraint(Sketcher.Constraint("DistanceX", -1, 1, 0, 3, Q("27 mm")))
sketch10.addConstraint(Sketcher.Constraint("DistanceY", -1, 1, 0, 3, Q("46 mm")))
pad10 = body10.newObject("PartDesign::Pad", "Pad009")
pad10.Profile = sketch10
pad10.Length = 0.1
pad10.Reversed = True
body11 = doc.addObject("PartDesign::Body", "Body010")

sketch11 = body11.newObject("Sketcher::SketchObject", "Sketch010")
sketch11.AttachmentSupport = (doc.getObject("XY_Plane010"), [""])
sketch11.MapMode = "FlatFace"
sketch11.addGeometry(Part.ArcOfCircle(Part.Circle(App.Vector(27, 46, 0), App.Vector(0, 0, 1), 5), math.radians(90), math.radians(180)), False)
sketch11.addGeometry(Part.LineSegment(App.Vector(22, 46, 0), App.Vector(22, 24, 0)), False)
sketch11.addGeometry(Part.ArcOfCircle(Part.Circle(App.Vector(27, 24, 0), App.Vector(0, 0, 1), 5), math.radians(180), math.radians(270)), False)
sketch11.addGeometry(Part.LineSegment(App.Vector(27, 19, 0), App.Vector(33, 19, 0)), False)
sketch11.addGeometry(Part.ArcOfCircle(Part.Circle(App.Vector(33, 24, 0), App.Vector(0, 0, 1), 5), math.radians(-90), math.radians(0)), False)
sketch11.addGeometry(Part.LineSegment(App.Vector(38, 24, 0), App.Vector(38, 46, 0)), False)
sketch11.addGeometry(Part.ArcOfCircle(Part.Circle(App.Vector(33, 46, 0), App.Vector(0, 0, 1), 5), math.radians(0), math.radians(90)), False)
sketch11.addGeometry(Part.LineSegment(App.Vector(33, 51, 0), App.Vector(27, 51, 0)), False)
sketch11.addGeometry(Part.Circle(App.Vector(27, 24, 0), App.Vector(0, 0, 1), 1.5), False)
sketch11.addGeometry(Part.ArcOfCircle(Part.Circle(App.Vector(33, 32, 0), App.Vector(0, 0, 1), 1.5), math.radians(0), math.radians(258)), False)
sketch11.addGeometry(Part.ArcOfCircle(Part.Circle(App.Vector(33, 32, 0), App.Vector(0, 0, 1), 1.5), math.radians(-78), math.radians(0)), False)
sketch11.addGeometry(Part.LineSegment(App.Vector(33.3, 30.5, 0), App.Vector(33.3, 25.5, 0)), False)
sketch11.addGeometry(Part.ArcOfCircle(Part.Circle(App.Vector(33, 24, 0), App.Vector(0, 0, 1), 1.5), math.radians(0), math.radians(78)), False)
sketch11.addGeometry(Part.ArcOfCircle(Part.Circle(App.Vector(33, 24, 0), App.Vector(0, 0, 1), 1.5), math.radians(102), math.radians(360)), False)
sketch11.addGeometry(Part.LineSegment(App.Vector(32.7, 25.5, 0), App.Vector(32.7, 30.5, 0)), False)
sketch11.addGeometry(Part.Circle(App.Vector(27, 46, 0), App.Vector(0, 0, 1), 1.5), False)
sketch11.addGeometry(Part.ArcOfCircle(Part.Circle(App.Vector(33, 46, 0), App.Vector(0, 0, 1), 1.5), math.radians(0), math.radians(258)), False)
sketch11.addGeometry(Part.ArcOfCircle(Part.Circle(App.Vector(33, 46, 0), App.Vector(0, 0, 1), 1.5), math.radians(-78), math.radians(0)), False)
sketch11.addGeometry(Part.LineSegment(App.Vector(33.3, 44.5, 0), App.Vector(33.3, 39.5, 0)), False)
sketch11.addGeometry(Part.ArcOfCircle(Part.Circle(App.Vector(33, 38, 0), App.Vector(0, 0, 1), 1.5), math.radians(0), math.radians(78)), False)
sketch11.addGeometry(Part.ArcOfCircle(Part.Circle(App.Vector(33, 38, 0), App.Vector(0, 0, 1), 1.5), math.radians(102), math.radians(360)), False)
sketch11.addGeometry(Part.LineSegment(App.Vector(32.7, 39.5, 0), App.Vector(32.7, 44.5, 0)), False)
sketch11.addConstraint(Sketcher.Constraint("Tangent", 0, 2, 1, 1))
sketch11.addConstraint(Sketcher.Constraint("Tangent", 1, 2, 2, 1))
sketch11.addConstraint(Sketcher.Constraint("Tangent", 2, 2, 3, 1))
sketch11.addConstraint(Sketcher.Constraint("Tangent", 3, 2, 4, 1))
sketch11.addConstraint(Sketcher.Constraint("Tangent", 4, 2, 5, 1))
sketch11.addConstraint(Sketcher.Constraint("Tangent", 5, 2, 6, 1))
sketch11.addConstraint(Sketcher.Constraint("Tangent", 6, 2, 7, 1))
sketch11.addConstraint(Sketcher.Constraint("Tangent", 7, 2, 0, 1))
sketch11.addConstraint(Sketcher.Constraint("Tangent", 9, 1, 10, 2))
sketch11.addConstraint(Sketcher.Constraint("Coincident", 10, 1, 11, 1))
sketch11.addConstraint(Sketcher.Constraint("Coincident", 11, 2, 12, 2))
sketch11.addConstraint(Sketcher.Constraint("Tangent", 12, 1, 13, 2))
sketch11.addConstraint(Sketcher.Constraint("Coincident", 13, 1, 14, 1))
sketch11.addConstraint(Sketcher.Constraint("Coincident", 14, 2, 9, 2))
sketch11.addConstraint(Sketcher.Constraint("Tangent", 16, 1, 17, 2))
sketch11.addConstraint(Sketcher.Constraint("Coincident", 17, 1, 18, 1))
sketch11.addConstraint(Sketcher.Constraint("Coincident", 18, 2, 19, 2))
sketch11.addConstraint(Sketcher.Constraint("Tangent", 19, 1, 20, 2))
sketch11.addConstraint(Sketcher.Constraint("Coincident", 20, 1, 21, 1))
sketch11.addConstraint(Sketcher.Constraint("Coincident", 21, 2, 16, 2))
sketch11.addConstraint(Sketcher.Constraint("Vertical", 1))
sketch11.addConstraint(Sketcher.Constraint("Horizontal", 3))
sketch11.addConstraint(Sketcher.Constraint("Vertical", 5))
sketch11.addConstraint(Sketcher.Constraint("Horizontal", 7))
sketch11.addConstraint(Sketcher.Constraint("Vertical", 11))
sketch11.addConstraint(Sketcher.Constraint("Vertical", 14))
sketch11.addConstraint(Sketcher.Constraint("Vertical", 18))
sketch11.addConstraint(Sketcher.Constraint("Vertical", 21))
sketch11.addConstraint(Sketcher.Constraint("Coincident", 8, 3, 2, 3))
sketch11.addConstraint(Sketcher.Constraint("Coincident", 12, 3, 4, 3))
sketch11.addConstraint(Sketcher.Constraint("Coincident", 15, 3, 0, 3))
sketch11.addConstraint(Sketcher.Constraint("Coincident", 16, 3, 6, 3))
sketch11.addConstraint(Sketcher.Constraint("Equal", 0, 2))
sketch11.addConstraint(Sketcher.Constraint("Equal", 2, 4))
sketch11.addConstraint(Sketcher.Constraint("Equal", 4, 6))
sketch11.addConstraint(Sketcher.Constraint("Equal", 8, 9))
sketch11.addConstraint(Sketcher.Constraint("Equal", 9, 10))
sketch11.addConstraint(Sketcher.Constraint("Equal", 10, 12))
sketch11.addConstraint(Sketcher.Constraint("Equal", 12, 13))
sketch11.addConstraint(Sketcher.Constraint("Equal", 13, 15))
sketch11.addConstraint(Sketcher.Constraint("Equal", 15, 16))
sketch11.addConstraint(Sketcher.Constraint("Equal", 16, 17))
sketch11.addConstraint(Sketcher.Constraint("Equal", 17, 19))
sketch11.addConstraint(Sketcher.Constraint("Equal", 19, 20))
sketch11.addConstraint(Sketcher.Constraint("Horizontal", 10, 3, 9, 1))
sketch11.addConstraint(Sketcher.Constraint("Horizontal", 4, 2, 12, 1))
sketch11.addConstraint(Sketcher.Constraint("Horizontal", 11, 2, 13, 1))
sketch11.addConstraint(Sketcher.Constraint("Horizontal", 10, 1, 14, 2))
sketch11.addConstraint(Sketcher.Constraint("Horizontal", 5, 2, 16, 1))
sketch11.addConstraint(Sketcher.Constraint("Horizontal", 20, 3, 19, 1))
sketch11.addConstraint(Sketcher.Constraint("Horizontal", 18, 2, 20, 1))
sketch11.addConstraint(Sketcher.Constraint("Horizontal", 17, 1, 21, 2))
sketch11.addConstraint(Sketcher.Constraint("Vertical", 11, 2, 17, 1))
sketch11.addConstraint(Sketcher.Constraint("Equal", 14, 18))
sketch11.addConstraint(Sketcher.Constraint("Diameter", 8, Q("3 mm")))
sketch11.addConstraint(Sketcher.Constraint("Radius", 0, Q("5 mm")))
sketch11.addConstraint(Sketcher.Constraint("DistanceX", 3, 1, 3, 2, Q("6 mm")))
sketch11.addConstraint(Sketcher.Constraint("DistanceY", 1, 2, 1, 1, Q("22 mm")))
sketch11.addConstraint(Sketcher.Constraint("DistanceX", -1, 1, 0, 3, Q("27 mm")))
sketch11.addConstraint(Sketcher.Constraint("DistanceY", -1, 1, 0, 3, Q("46 mm")))
sketch11.addConstraint(Sketcher.Constraint("DistanceY", -1, 1, 9, 3, Q("32 mm")))
sketch11.addConstraint(Sketcher.Constraint("DistanceX", -1, 1, 10, 1, Q("33.3 mm")))
pad11 = body11.newObject("PartDesign::Pad", "Pad010")
pad11.Profile = sketch11
pad11.Length = 0.1

doc.recompute()
